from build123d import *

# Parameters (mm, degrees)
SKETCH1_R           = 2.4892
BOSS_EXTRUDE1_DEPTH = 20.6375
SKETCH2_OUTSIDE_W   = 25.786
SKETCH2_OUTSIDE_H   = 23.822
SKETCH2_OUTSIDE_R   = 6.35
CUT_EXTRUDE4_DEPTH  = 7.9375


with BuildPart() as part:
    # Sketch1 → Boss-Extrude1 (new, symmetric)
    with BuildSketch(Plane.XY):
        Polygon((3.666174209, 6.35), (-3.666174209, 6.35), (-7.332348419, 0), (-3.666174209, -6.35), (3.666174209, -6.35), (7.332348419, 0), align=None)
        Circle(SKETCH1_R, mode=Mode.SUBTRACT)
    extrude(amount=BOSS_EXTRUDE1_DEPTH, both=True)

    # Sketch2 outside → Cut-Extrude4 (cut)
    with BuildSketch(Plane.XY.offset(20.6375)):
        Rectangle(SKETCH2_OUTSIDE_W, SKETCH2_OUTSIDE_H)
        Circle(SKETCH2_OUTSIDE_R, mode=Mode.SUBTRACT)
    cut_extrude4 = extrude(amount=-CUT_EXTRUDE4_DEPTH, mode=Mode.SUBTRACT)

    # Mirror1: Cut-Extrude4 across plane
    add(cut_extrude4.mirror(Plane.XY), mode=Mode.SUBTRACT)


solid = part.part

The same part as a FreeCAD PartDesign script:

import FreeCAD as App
import Part
import Sketcher

V = App.Vector
Q = App.Units.Quantity

doc = App.newDocument("Part")
body = doc.addObject("PartDesign::Body", "Body")

# Sketch on XY plane
sketch1 = body.newObject("Sketcher::SketchObject", "Sketch")
sketch1.AttachmentSupport = (doc.getObject("XY_Plane"), [""])
sketch1.MapMode = "FlatFace"
sketch1.addGeometry([
    Part.LineSegment(V(3.666174, 6.35, 0), V(-3.666174, 6.35, 0)),  # 0
    Part.LineSegment(V(-3.666174, 6.35, 0), V(-7.332348, 0, 0)),  # 1
    Part.LineSegment(V(-7.332348, 0, 0), V(-3.666174, -6.35, 0)),  # 2
    Part.LineSegment(V(-3.666174, -6.35, 0), V(3.666174, -6.35, 0)),  # 3
    Part.LineSegment(V(3.666174, -6.35, 0), V(7.332348, 0, 0)),  # 4
    Part.LineSegment(V(7.332348, 0, 0), V(3.666174, 6.35, 0)),  # 5
    Part.Circle(V(0, 0, 0), V(0, 0, 1), 2.4892),  # 6
], False)
sketch1.addConstraint([
    Sketcher.Constraint("Coincident", 0, 2, 1, 1),
    Sketcher.Constraint("Coincident", 1, 2, 2, 1),
    Sketcher.Constraint("Coincident", 2, 2, 3, 1),
    Sketcher.Constraint("Coincident", 3, 2, 4, 1),
    Sketcher.Constraint("Coincident", 4, 2, 5, 1),
    Sketcher.Constraint("Coincident", 5, 2, 0, 1),
    Sketcher.Constraint("Horizontal", 0),
    Sketcher.Constraint("Horizontal", 3),
    Sketcher.Constraint("Coincident", 6, 3, -1, 1),
    Sketcher.Constraint("Symmetric", 0, 2, 3, 2, -1, 1),
    Sketcher.Constraint("Symmetric", 1, 2, 4, 2, -1, 1),
    Sketcher.Constraint("PointOnObject", 1, 2, -1),
    Sketcher.Constraint("Parallel", 2, 5),
    Sketcher.Constraint("Vertical", 0, 2, 2, 2),
    Sketcher.Constraint("Diameter", 6, Q("0.196 in")),
    Sketcher.Constraint("Angle", 1, Q("-120 deg")),
    Sketcher.Constraint("DistanceY", 2, 2, 0, 2, Q("0.5 in")),
    Sketcher.Constraint("DistanceX", 0, 2, 0, 1, 7.332348),
])
pad1 = body.newObject("PartDesign::Pad", "Pad")
pad1.Profile = sketch1
pad1.Length = Q("1.625 in")
pad1.Midplane = True

# Sketch on XY plane
sketch2 = body.newObject("Sketcher::SketchObject", "Sketch001")
sketch2.AttachmentSupport = (doc.getObject("XY_Plane"), [""])
sketch2.MapMode = "FlatFace"
sketch2.AttachmentOffset = App.Placement(V(0, 0, 0.8125 * 25.4), App.Rotation())
sketch2.addGeometry([
    Part.LineSegment(V(-12.893, 11.911, 0), V(-12.893, -11.911, 0)),  # 0
    Part.LineSegment(V(-12.893, -11.911, 0), V(12.893, -11.911, 0)),  # 1
    Part.LineSegment(V(12.893, -11.911, 0), V(12.893, 11.911, 0)),  # 2
    Part.LineSegment(V(12.893, 11.911, 0), V(-12.893, 11.911, 0)),  # 3
    Part.Circle(V(0, 0, 0), V(0, 0, 1), 6.35),  # 4
], False)
sketch2.addConstraint([
    Sketcher.Constraint("Coincident", 0, 2, 1, 1),
    Sketcher.Constraint("Coincident", 1, 2, 2, 1),
    Sketcher.Constraint("Coincident", 2, 2, 3, 1),
    Sketcher.Constraint("Coincident", 3, 2, 0, 1),
    Sketcher.Constraint("Vertical", 0),
    Sketcher.Constraint("Horizontal", 1),
    Sketcher.Constraint("Vertical", 2),
    Sketcher.Constraint("Horizontal", 3),
    Sketcher.Constraint("Coincident", 4, 3, -1, 1),
    Sketcher.Constraint("Symmetric", 0, 2, 2, 2, -1, 1),
    Sketcher.Constraint("Diameter", 4, Q("0.5 in")),
    Sketcher.Constraint("DistanceX", 1, 1, 1, 2, 25.786),
    Sketcher.Constraint("DistanceY", 0, 2, 0, 1, 23.822),
])
pocket1 = body.newObject("PartDesign::Pocket", "Pocket")
pocket1.Profile = sketch2
pocket1.Length = Q("0.3125 in")
doc.recompute()

mirrored = body.newObject("PartDesign::Mirrored", "Mirrored")
mirrored.Originals = [pocket1]
mirrored.MirrorPlane = (doc.getObject("XY_Plane"), [""])
body.Tip = mirrored

doc.recompute()
